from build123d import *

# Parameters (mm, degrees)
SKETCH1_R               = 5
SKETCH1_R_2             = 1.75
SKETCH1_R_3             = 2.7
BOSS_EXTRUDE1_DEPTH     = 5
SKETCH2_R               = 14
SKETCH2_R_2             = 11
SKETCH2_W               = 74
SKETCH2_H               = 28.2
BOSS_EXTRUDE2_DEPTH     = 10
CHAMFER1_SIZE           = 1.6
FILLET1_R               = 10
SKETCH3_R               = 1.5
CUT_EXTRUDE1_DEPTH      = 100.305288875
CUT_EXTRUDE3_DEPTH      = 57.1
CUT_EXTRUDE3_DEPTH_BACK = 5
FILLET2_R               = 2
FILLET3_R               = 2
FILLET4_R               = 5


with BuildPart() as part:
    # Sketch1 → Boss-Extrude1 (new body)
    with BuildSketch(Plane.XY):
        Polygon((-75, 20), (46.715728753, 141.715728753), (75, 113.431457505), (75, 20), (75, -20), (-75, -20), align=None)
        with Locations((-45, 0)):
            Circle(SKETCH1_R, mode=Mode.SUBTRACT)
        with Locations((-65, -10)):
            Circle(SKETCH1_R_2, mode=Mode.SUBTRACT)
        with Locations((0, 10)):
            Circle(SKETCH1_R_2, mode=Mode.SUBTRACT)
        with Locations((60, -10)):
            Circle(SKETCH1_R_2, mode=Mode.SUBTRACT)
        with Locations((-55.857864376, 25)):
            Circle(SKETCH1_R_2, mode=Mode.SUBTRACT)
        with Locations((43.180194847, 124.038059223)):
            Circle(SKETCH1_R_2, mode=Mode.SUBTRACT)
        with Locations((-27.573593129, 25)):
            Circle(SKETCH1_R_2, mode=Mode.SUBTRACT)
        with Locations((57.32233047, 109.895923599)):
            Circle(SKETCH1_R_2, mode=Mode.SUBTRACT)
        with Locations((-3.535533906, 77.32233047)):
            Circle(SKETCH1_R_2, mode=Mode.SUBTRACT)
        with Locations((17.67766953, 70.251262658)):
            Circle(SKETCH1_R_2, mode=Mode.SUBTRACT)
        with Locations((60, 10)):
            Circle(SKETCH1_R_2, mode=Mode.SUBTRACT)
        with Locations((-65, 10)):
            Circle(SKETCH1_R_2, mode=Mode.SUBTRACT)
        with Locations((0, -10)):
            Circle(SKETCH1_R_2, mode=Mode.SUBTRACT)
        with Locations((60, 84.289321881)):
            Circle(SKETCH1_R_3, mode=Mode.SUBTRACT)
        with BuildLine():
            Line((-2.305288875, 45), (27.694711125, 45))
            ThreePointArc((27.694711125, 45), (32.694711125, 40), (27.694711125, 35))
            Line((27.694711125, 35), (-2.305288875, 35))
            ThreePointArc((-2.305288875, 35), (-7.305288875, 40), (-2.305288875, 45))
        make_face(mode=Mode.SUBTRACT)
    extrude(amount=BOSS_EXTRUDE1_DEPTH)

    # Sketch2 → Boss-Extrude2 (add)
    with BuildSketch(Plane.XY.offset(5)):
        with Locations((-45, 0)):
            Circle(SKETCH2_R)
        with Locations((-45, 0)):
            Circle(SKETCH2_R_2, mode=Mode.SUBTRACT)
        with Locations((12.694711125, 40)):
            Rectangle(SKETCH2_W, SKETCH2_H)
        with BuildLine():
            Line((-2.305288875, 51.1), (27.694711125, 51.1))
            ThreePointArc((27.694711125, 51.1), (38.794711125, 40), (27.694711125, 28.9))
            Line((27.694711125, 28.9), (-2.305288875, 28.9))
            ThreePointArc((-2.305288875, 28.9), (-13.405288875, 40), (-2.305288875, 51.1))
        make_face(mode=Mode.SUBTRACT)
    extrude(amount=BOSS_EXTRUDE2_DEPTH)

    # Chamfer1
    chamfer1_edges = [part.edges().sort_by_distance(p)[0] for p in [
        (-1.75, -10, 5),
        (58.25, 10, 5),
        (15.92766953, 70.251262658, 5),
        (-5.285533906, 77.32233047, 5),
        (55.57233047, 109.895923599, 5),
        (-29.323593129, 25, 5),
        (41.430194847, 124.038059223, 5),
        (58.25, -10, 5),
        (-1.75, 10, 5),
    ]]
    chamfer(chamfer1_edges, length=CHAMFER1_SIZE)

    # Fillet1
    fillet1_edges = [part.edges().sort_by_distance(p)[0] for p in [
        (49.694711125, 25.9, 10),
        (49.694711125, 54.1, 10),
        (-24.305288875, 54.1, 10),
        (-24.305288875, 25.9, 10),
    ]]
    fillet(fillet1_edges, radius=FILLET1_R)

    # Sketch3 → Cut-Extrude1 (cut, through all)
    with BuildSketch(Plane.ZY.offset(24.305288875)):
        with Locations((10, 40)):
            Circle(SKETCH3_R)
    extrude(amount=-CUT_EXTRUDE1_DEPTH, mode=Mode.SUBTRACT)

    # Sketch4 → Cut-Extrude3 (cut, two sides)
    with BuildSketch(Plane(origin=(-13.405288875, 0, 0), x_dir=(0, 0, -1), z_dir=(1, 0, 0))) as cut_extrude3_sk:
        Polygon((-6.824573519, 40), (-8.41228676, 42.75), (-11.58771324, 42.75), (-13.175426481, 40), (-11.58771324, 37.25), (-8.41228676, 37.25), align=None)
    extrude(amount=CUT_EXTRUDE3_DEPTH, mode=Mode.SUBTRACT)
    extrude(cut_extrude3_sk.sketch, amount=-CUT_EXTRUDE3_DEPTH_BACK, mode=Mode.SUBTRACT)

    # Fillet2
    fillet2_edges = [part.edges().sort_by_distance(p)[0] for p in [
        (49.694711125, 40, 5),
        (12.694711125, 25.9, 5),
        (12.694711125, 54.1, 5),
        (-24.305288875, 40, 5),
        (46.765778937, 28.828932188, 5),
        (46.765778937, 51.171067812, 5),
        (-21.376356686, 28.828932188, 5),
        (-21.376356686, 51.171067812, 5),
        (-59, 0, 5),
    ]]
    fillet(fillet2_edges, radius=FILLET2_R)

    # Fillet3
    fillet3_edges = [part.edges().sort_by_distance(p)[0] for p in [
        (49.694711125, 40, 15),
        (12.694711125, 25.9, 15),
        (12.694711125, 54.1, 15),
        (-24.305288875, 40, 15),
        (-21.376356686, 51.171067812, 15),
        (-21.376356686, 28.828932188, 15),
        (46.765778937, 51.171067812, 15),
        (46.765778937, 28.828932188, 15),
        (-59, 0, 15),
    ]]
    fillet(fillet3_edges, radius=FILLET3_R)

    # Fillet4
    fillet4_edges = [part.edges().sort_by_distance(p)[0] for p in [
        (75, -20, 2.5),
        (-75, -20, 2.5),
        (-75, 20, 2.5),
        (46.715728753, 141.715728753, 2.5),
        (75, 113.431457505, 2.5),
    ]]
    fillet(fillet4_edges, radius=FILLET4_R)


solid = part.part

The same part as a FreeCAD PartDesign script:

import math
import FreeCAD as App
import Part
import Sketcher
from FreeCAD import Vector
Q = App.Units.Quantity


def edges_at(feature, points):
    """Names of the edges that pass closest to the given points."""
    edges = feature.Shape.Edges
    near = lambda p: min(range(len(edges)), key=lambda i: edges[i].distToShape(Part.Vertex(*p))[0])
    return sorted({f"Edge{near(p) + 1}" for p in points})

doc = App.newDocument("Part")
body = doc.addObject("PartDesign::Body", "Body")

# Sketch on XY plane
sketch1 = doc.addObject("Sketcher::SketchObject", "Sketch")
body.addObject(sketch1)
sketch1.AttachmentSupport = (doc.XY_Plane, [""])
sketch1.MapMode = "FlatFace"
sketch1.addGeometry([
    Part.LineSegment(Vector(46.7, 141.7, 0), Vector(-75, 20, 0)),  # 0
    Part.LineSegment(Vector(-75, 20, 0), Vector(-75, -20, 0)),  # 1
    Part.LineSegment(Vector(-75, -20, 0), Vector(75, -20, 0)),  # 2
    Part.LineSegment(Vector(75, -20, 0), Vector(75, 113.4, 0)),  # 3
    Part.LineSegment(Vector(75, 113.4, 0), Vector(46.7, 141.7, 0)),  # 4
    Part.Circle(Vector(60, -10, 0), Vector(0, 0, 1), 1.8),  # 5
    Part.Circle(Vector(60, 10, 0), Vector(0, 0, 1), 1.8),  # 6
    Part.Circle(Vector(0, -10, 0), Vector(0, 0, 1), 1.8),  # 7
    Part.Circle(Vector(0, 10, 0), Vector(0, 0, 1), 1.8),  # 8
    Part.LineSegment(Vector(-2.3, 45, 0), Vector(27.7, 45, 0)),  # 9
    Part.ArcOfCircle(Part.Circle(Vector(27.7, 40, 0), Vector(0, 0, 1), 5), math.radians(-90), math.radians(90)),  # 10
    Part.LineSegment(Vector(27.7, 35, 0), Vector(-2.3, 35, 0)),  # 11
    Part.ArcOfCircle(Part.Circle(Vector(-2.3, 40, 0), Vector(0, 0, 1), 5), math.radians(90), math.radians(270)),  # 12
    Part.Circle(Vector(-45, 0, 0), Vector(0, 0, 1), 5),  # 13
    Part.Circle(Vector(-65, -10, 0), Vector(0, 0, 1), 1.8),  # 14
    Part.Circle(Vector(-65, 10, 0), Vector(0, 0, 1), 1.8),  # 15
    Part.Circle(Vector(-27.6, 25, 0), Vector(0, 0, 1), 1.8),  # 16
    Part.Circle(Vector(-55.9, 25, 0), Vector(0, 0, 1), 1.8),  # 17
    Part.Circle(Vector(60, 84.3, 0), Vector(0, 0, 1), 2.7),  # 18
    Part.Circle(Vector(17.7, 70.3, 0), Vector(0, 0, 1), 1.8),  # 19
    Part.Circle(Vector(57.3, 109.9, 0), Vector(0, 0, 1), 1.8),  # 20
    Part.Circle(Vector(43.2, 124, 0), Vector(0, 0, 1), 1.8),  # 21
    Part.Circle(Vector(-3.5, 77.3, 0), Vector(0, 0, 1), 1.8),  # 22
], False)
sketch1.addConstraint([
    Sketcher.Constraint("Coincident", 0, 2, 1, 1),
    Sketcher.Constraint("Coincident", 1, 2, 2, 1),
    Sketcher.Constraint("Coincident", 2, 2, 3, 1),
    Sketcher.Constraint("Coincident", 3, 2, 4, 1),
    Sketcher.Constraint("Coincident", 4, 2, 0, 1),
    Sketcher.Constraint("Tangent", 9, 2, 10, 2),
    Sketcher.Constraint("Tangent", 10, 1, 11, 1),
    Sketcher.Constraint("Tangent", 11, 2, 12, 2),
    Sketcher.Constraint("Tangent", 12, 1, 9, 1),
    Sketcher.Constraint("Vertical", 1),
    Sketcher.Constraint("Horizontal", 2),
    Sketcher.Constraint("Vertical", 3),
    Sketcher.Constraint("Horizontal", 9),
    Sketcher.Constraint("Horizontal", 11),
    Sketcher.Constraint("Equal", 5, 6),
    Sketcher.Constraint("Equal", 6, 7),
    Sketcher.Constraint("Equal", 7, 8),
    Sketcher.Constraint("Equal", 12, 13),
    Sketcher.Constraint("Equal", 8, 14),
    Sketcher.Constraint("Equal", 14, 15),
    Sketcher.Constraint("Equal", 15, 16),
    Sketcher.Constraint("Equal", 16, 17),
    Sketcher.Constraint("Equal", 17, 19),
    Sketcher.Constraint("Equal", 19, 20),
    Sketcher.Constraint("Equal", 20, 21),
    Sketcher.Constraint("Equal", 21, 22),
    Sketcher.Constraint("Symmetric", 7, 3, 8, 3, -1, 1),
    Sketcher.Constraint("Symmetric", 0, 2, 2, 2, -1, 1),
    Sketcher.Constraint("Symmetric", 5, 3, 6, 3, -1),
    Sketcher.Constraint("Symmetric", 14, 3, 15, 3, -1),
    Sketcher.Constraint("PointOnObject", 7, 3, -2),
    Sketcher.Constraint("PointOnObject", 13, 3, -1),
    Sketcher.Constraint("Perpendicular", 0, 4),
    Sketcher.Constraint("Horizontal", 5, 3, 7, 3),
    Sketcher.Constraint("Horizontal", 7, 3, 14, 3),
    Sketcher.Constraint("Horizontal", 16, 3, 17, 3),
    Sketcher.Constraint("Vertical", 6, 3, 18, 3),
    Sketcher.Constraint("Diameter", 13, Q("10 mm")),
    Sketcher.Constraint("Diameter", 5, Q("3.5 mm")),
    Sketcher.Constraint("Diameter", 18, Q("5.4 mm")),
    Sketcher.Constraint("DistanceX", 2, 1, 2, 2, Q("150 mm")),
    Sketcher.Constraint("DistanceX", 9, 1, 9, 2, Q("30 mm")),
    Sketcher.Constraint("DistanceY", 1, 2, 1, 1, Q("40 mm")),
    Sketcher.Constraint("Angle", 0, Q("-135 deg")),
    Sketcher.Constraint("Distance", 4, Q("40 mm")),
    Sketcher.Constraint("DistanceX", -1, 1, 5, 3, Q("60 mm")),
    Sketcher.Constraint("DistanceY", 5, 3, -1, 1, Q("10 mm")),
    Sketcher.Constraint("DistanceY", -1, 1, 10, 3, Q("40 mm")),
    Sketcher.Constraint("DistanceX", 13, 3, -1, 1, Q("45 mm")),
    Sketcher.Constraint("DistanceX", 14, 3, -1, 1, Q("65 mm")),
    Sketcher.Constraint("DistanceY", -1, 1, 16, 3, Q("25 mm")),
    Sketcher.Constraint("DistanceY", 18, 3, 20, 3, Q("25.606602 mm")),
    Sketcher.Constraint("DistanceY", 3, 2, 21, 3, Q("10.606602 mm")),
    Sketcher.Constraint("DistanceX", 4, 2, 20, 3, Q("10.606602 mm")),
    Sketcher.Constraint("DistanceX", -1, 1, 10, 3, Q("27.694711 mm")),
    Sketcher.Constraint("DistanceY", -1, 1, 18, 3, Q("84.289322 mm")),
    Sketcher.Constraint("DistanceX", -1, 1, 19, 3, Q("17.67767 mm")),
    Sketcher.Constraint("DistanceY", -1, 1, 22, 3, Q("77.32233 mm")),
    Sketcher.Constraint("DistanceX", 17, 3, 16, 3, Q("28.284271 mm")),
    Sketcher.Constraint("DistanceY", 19, 3, 18, 3, Q("14.038059 mm")),
    Sketcher.Constraint("DistanceX", 16, 3, 22, 3, Q("24.038059 mm")),
    Sketcher.Constraint("DistanceX", 16, 3, -1, 1, Q("27.573593 mm")),
    Sketcher.Constraint("DistanceX", -1, 1, 21, 3, Q("43.180195 mm")),
])
pad1 = doc.addObject("PartDesign::Pad", "Pad")
body.addObject(pad1)
pad1.Profile = sketch1
pad1.Length = 5

# Sketch on XY plane
sketch2 = doc.addObject("Sketcher::SketchObject", "Sketch001")
body.addObject(sketch2)
sketch2.AttachmentSupport = (doc.XY_Plane, [""])
sketch2.MapMode = "FlatFace"
sketch2.AttachmentOffset = App.Placement(Vector(0, 0, 5), App.Rotation())
sketch2.addGeometry([
    Part.Circle(Vector(-45, 0, 0), Vector(0, 0, 1), 14),  # 0
    Part.Circle(Vector(-45, 0, 0), Vector(0, 0, 1), 11),  # 1
    Part.LineSegment(Vector(-24, 54, 0), Vector(-24, 26, 0)),  # 2
    Part.LineSegment(Vector(-24, 26, 0), Vector(50, 26, 0)),  # 3
    Part.LineSegment(Vector(50, 26, 0), Vector(50, 54, 0)),  # 4
    Part.LineSegment(Vector(50, 54, 0), Vector(-24, 54, 0)),  # 5
    Part.ArcOfCircle(Part.Circle(Vector(-2, 40, 0), Vector(0, 0, 1), 11), math.radians(90), math.radians(270)),  # 6
    Part.LineSegment(Vector(-2, 51, 0), Vector(28, 51, 0)),  # 7
    Part.ArcOfCircle(Part.Circle(Vector(28, 40, 0), Vector(0, 0, 1), 11), math.radians(-90), math.radians(90)),  # 8
    Part.LineSegment(Vector(28, 29, 0), Vector(-2, 29, 0)),  # 9
], False)
sketch2.addConstraint([
    Sketcher.Constraint("Coincident", 2, 2, 3, 1),
    Sketcher.Constraint("Coincident", 3, 2, 4, 1),
    Sketcher.Constraint("Coincident", 4, 2, 5, 1),
    Sketcher.Constraint("Coincident", 5, 2, 2, 1),
    Sketcher.Constraint("Tangent", 6, 1, 7, 1),
    Sketcher.Constraint("Tangent", 7, 2, 8, 2),
    Sketcher.Constraint("Tangent", 8, 1, 9, 1),
    Sketcher.Constraint("Tangent", 9, 2, 6, 2),
    Sketcher.Constraint("Vertical", 2),
    Sketcher.Constraint("Horizontal", 3),
    Sketcher.Constraint("Vertical", 4),
    Sketcher.Constraint("Horizontal", 5),
    Sketcher.Constraint("Horizontal", 7),
    Sketcher.Constraint("Horizontal", 9),
    Sketcher.Constraint("Coincident", 1, 3, 0, 3),
    Sketcher.Constraint("PointOnObject", 0, 3, -1),
    Sketcher.Constraint("Diameter", 0, Q("28 mm")),
    Sketcher.Constraint("Diameter", 1, Q("22 mm")),
    Sketcher.Constraint("Radius", 6, Q("11.1 mm")),
    Sketcher.Constraint("DistanceX", 3, 1, 3, 2, Q("74 mm")),
    Sketcher.Constraint("DistanceX", 7, 1, 7, 2, Q("30 mm")),
    Sketcher.Constraint("DistanceY", 2, 2, 2, 1, Q("28.2 mm")),
    Sketcher.Constraint("DistanceX", 0, 3, -1, 1, Q("45 mm")),
    Sketcher.Constraint("DistanceY", -1, 1, 6, 3, Q("40 mm")),
    Sketcher.Constraint("DistanceX", 2, 2, 6, 3, Q("22 mm")),
    Sketcher.Constraint("DistanceY", 6, 1, 5, 2, Q("3 mm")),
    Sketcher.Constraint("DistanceX", 6, 3, -1, 1, Q("2.305289 mm")),
])
pad2 = doc.addObject("PartDesign::Pad", "Pad001")
body.addObject(pad2)
pad2.Profile = sketch2
pad2.Length = 10
doc.recompute()

chamfer = doc.addObject("PartDesign::Chamfer", "Chamfer")
body.addObject(chamfer)
chamfer.Base = (pad2, edges_at(pad2, [
    (-1.75, -10, 5),
    (58.25, 10, 5),
    (15.928, 70.251, 5),
    (-5.286, 77.322, 5),
    (55.572, 109.896, 5),
    (-29.324, 25, 5),
    (41.43, 124.038, 5),
    (58.25, -10, 5),
    (-1.75, 10, 5),
]))
chamfer.Size = 1.6
doc.recompute()

fillet = doc.addObject("PartDesign::Fillet", "Fillet")
body.addObject(fillet)
fillet.Base = (chamfer, edges_at(chamfer, [
    (49.695, 25.9, 10),
    (49.695, 54.1, 10),
    (-24.305, 54.1, 10),
    (-24.305, 25.9, 10),
]))
fillet.Radius = 10

# Sketch on YZ plane
sketch3 = doc.addObject("Sketcher::SketchObject", "Sketch002")
body.addObject(sketch3)
sketch3.AttachmentSupport = (doc.YZ_Plane, [""])
sketch3.MapMode = "FlatFace"
sketch3.AttachmentOffset = App.Placement(Vector(0, 0, -24.305289), App.Rotation())
sketch3.addGeometry(Part.Circle(Vector(40, 10, 0), Vector(0, 0, 1), 1.5), False)
sketch3.addConstraint([
    Sketcher.Constraint("Diameter", 0, Q("3 mm")),
    Sketcher.Constraint("DistanceX", -1, 1, 0, 3, Q("40 mm")),
    Sketcher.Constraint("DistanceY", -1, 1, 0, 3, Q("10 mm")),
])
pocket1 = doc.addObject("PartDesign::Pocket", "Pocket")
body.addObject(pocket1)
pocket1.Profile = sketch3
pocket1.Type = "ThroughAll"
pocket1.Reversed = True

# Sketch on YZ plane
sketch4 = doc.addObject("Sketcher::SketchObject", "Sketch003")
body.addObject(sketch4)
sketch4.AttachmentSupport = (doc.YZ_Plane, [""])
sketch4.MapMode = "FlatFace"
sketch4.AttachmentOffset = App.Placement(Vector(0, 0, -13.405289), App.Rotation())
sketch4.addGeometry([
    Part.LineSegment(Vector(40, 6.8, 0), Vector(42.8, 8.4, 0)),  # 0
    Part.LineSegment(Vector(42.8, 8.4, 0), Vector(42.8, 11.6, 0)),  # 1
    Part.LineSegment(Vector(42.8, 11.6, 0), Vector(40, 13.2, 0)),  # 2
    Part.LineSegment(Vector(40, 13.2, 0), Vector(37.2, 11.6, 0)),  # 3
    Part.LineSegment(Vector(37.2, 11.6, 0), Vector(37.2, 8.4, 0)),  # 4
    Part.LineSegment(Vector(37.2, 8.4, 0), Vector(40, 6.8, 0)),  # 5
], False)
sketch4.addConstraint([
    Sketcher.Constraint("Coincident", 0, 2, 1, 1),
    Sketcher.Constraint("Coincident", 1, 2, 2, 1),
    Sketcher.Constraint("Coincident", 2, 2, 3, 1),
    Sketcher.Constraint("Coincident", 3, 2, 4, 1),
    Sketcher.Constraint("Coincident", 4, 2, 5, 1),
    Sketcher.Constraint("Coincident", 5, 2, 0, 1),
    Sketcher.Constraint("Vertical", 1),
    Sketcher.Constraint("Vertical", 4),
    Sketcher.Constraint("Parallel", 0, 3),
    Sketcher.Constraint("Parallel", 2, 5),
    Sketcher.Constraint("Horizontal", 1, 2, 3, 2),
    Sketcher.Constraint("Horizontal", 0, 2, 4, 2),
    Sketcher.Constraint("Vertical", 2, 2, 5, 2),
    Sketcher.Constraint("Angle", 0, Q("30 deg")),
    Sketcher.Constraint("DistanceX", -1, 1, 2, 2, Q("40 mm")),
    Sketcher.Constraint("DistanceX", 3, 2, 1, 2, Q("5.5 mm")),
    Sketcher.Constraint("DistanceY", 1, 1, 1, 2, Q("3.175426 mm")),
    Sketcher.Constraint("DistanceY", -1, 1, 0, 2, Q("8.412287 mm")),
])
pocket2 = doc.addObject("PartDesign::Pocket", "Pocket001")
body.addObject(pocket2)
pocket2.Profile = sketch4
pocket2.Type = "TwoLengths"
pocket2.Length = 57.1
pocket2.Length2 = 5
pocket2.Reversed = True
doc.recompute()

fillet2 = doc.addObject("PartDesign::Fillet", "Fillet001")
body.addObject(fillet2)
fillet2.Base = (pocket2, edges_at(pocket2, [
    (49.695, 40, 5),
    (12.695, 25.9, 5),
    (12.695, 54.1, 5),
    (-24.305, 40, 5),
    (46.766, 28.829, 5),
    (46.766, 51.171, 5),
    (-21.376, 28.829, 5),
    (-21.376, 51.171, 5),
    (-59, 0, 5),
]))
fillet2.Radius = 2
doc.recompute()

fillet3 = doc.addObject("PartDesign::Fillet", "Fillet002")
body.addObject(fillet3)
fillet3.Base = (fillet2, edges_at(fillet2, [
    (49.695, 40, 15),
    (12.695, 25.9, 15),
    (12.695, 54.1, 15),
    (-24.305, 40, 15),
    (-21.376, 51.171, 15),
    (-21.376, 28.829, 15),
    (46.766, 51.171, 15),
    (46.766, 28.829, 15),
    (-59, 0, 15),
]))
fillet3.Radius = 2
doc.recompute()

fillet4 = doc.addObject("PartDesign::Fillet", "Fillet003")
body.addObject(fillet4)
fillet4.Base = (fillet3, edges_at(fillet3, [
    (75, -20, 2.5),
    (-75, -20, 2.5),
    (-75, 20, 2.5),
    (46.716, 141.716, 2.5),
    (75, 113.431, 2.5),
]))
fillet4.Radius = 5

doc.recompute()
